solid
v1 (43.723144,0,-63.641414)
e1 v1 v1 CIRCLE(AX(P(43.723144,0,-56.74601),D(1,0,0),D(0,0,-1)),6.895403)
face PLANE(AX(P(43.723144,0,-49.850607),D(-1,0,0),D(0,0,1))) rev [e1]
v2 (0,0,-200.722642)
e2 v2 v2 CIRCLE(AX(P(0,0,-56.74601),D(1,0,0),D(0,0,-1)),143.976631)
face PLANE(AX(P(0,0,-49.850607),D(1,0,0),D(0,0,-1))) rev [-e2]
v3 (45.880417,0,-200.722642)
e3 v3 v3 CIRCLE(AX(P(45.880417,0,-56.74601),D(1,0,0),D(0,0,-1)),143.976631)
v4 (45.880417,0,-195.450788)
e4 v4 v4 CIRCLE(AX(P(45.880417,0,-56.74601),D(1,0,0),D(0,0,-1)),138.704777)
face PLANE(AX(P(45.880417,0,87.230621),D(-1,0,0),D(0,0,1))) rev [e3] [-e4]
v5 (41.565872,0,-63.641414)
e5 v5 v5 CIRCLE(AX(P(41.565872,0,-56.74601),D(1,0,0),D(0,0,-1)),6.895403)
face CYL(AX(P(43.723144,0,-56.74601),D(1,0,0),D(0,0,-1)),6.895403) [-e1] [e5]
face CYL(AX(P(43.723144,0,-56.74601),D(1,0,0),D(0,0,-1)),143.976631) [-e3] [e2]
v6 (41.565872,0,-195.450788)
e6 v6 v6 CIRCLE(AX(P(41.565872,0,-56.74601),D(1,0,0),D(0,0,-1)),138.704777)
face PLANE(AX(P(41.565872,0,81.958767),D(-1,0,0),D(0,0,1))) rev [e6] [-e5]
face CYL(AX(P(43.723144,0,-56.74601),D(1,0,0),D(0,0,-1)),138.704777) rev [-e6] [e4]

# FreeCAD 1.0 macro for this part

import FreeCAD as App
import Part
import Sketcher

V = App.Vector
Q = App.Units.Quantity


def add_polygon(sketch, points):
    """Adds a closed chain of lines whose ends are joined by coincident constraints."""
    first, n = sketch.GeometryCount, len(points)
    for a, b in zip(points, points[1:] + points[:1]):
        sketch.addGeometry(Part.LineSegment(App.Vector(*a, 0), App.Vector(*b, 0)), False)
    for i in range(n):
        sketch.addConstraint(Sketcher.Constraint("Coincident", first + i, 2, first + (i + 1) % n, 1))

doc = App.newDocument("Part")
body = doc.addObject("PartDesign::Body", "Body")

sketch1 = doc.addObject("Sketcher::SketchObject", "Sketch")
body.addObject(sketch1)
sketch1.AttachmentSupport = (doc.XZ_Plane, [""])
sketch1.MapMode = "FlatFace"
add_polygon(sketch1, [(0, 87.2), (45.9, 87.2), (45.9, 82), (41.6, 82), (41.6, -49.9), (43.7, -49.9), (43.7, -56.7), (0, -56.7)])
sketch1.addGeometry(Part.LineSegment(V(45.9, -56.7, 0), V(0, -56.7, 0)), True)
sketch1.addConstraint([
    Sketcher.Constraint("Horizontal", 0),
    Sketcher.Constraint("Vertical", 1),
    Sketcher.Constraint("Horizontal", 2),
    Sketcher.Constraint("Vertical", 3),
    Sketcher.Constraint("Horizontal", 4),
    Sketcher.Constraint("Vertical", 5),
    Sketcher.Constraint("Horizontal", 6),
    Sketcher.Constraint("Vertical", 7),
    Sketcher.Constraint("Horizontal", 8),
    Sketcher.Constraint("Coincident", 8, 2, 6, 2),
    Sketcher.Constraint("PointOnObject", 6, 2, -2),
    Sketcher.Constraint("Vertical", 1, 2, 8, 1),
    Sketcher.Constraint("DistanceY", 7, 1, 7, 2, Q("143.976631 mm")),
    Sketcher.Constraint("DistanceX", 0, 1, 0, 2, Q("45.880417 mm")),
    Sketcher.Constraint("DistanceX", 2, 2, 2, 1, Q("4.314545 mm")),
    Sketcher.Constraint("DistanceX", 4, 1, 4, 2, Q("2.157272 mm")),
    Sketcher.Constraint("DistanceY", 1, 2, 1, 1, Q("5.271854 mm")),
    Sketcher.Constraint("DistanceY", 3, 2, 3, 1, Q("131.809374 mm")),
    Sketcher.Constraint("DistanceY", -1, 1, 0, 2, Q("87.230621 mm")),
])
revolution = doc.addObject("PartDesign::Revolution", "Revolution")
body.addObject(revolution)
revolution.Profile = sketch1
revolution.ReferenceAxis = (sketch1, ["Axis0"])
revolution.Angle = 360

doc.recompute()
